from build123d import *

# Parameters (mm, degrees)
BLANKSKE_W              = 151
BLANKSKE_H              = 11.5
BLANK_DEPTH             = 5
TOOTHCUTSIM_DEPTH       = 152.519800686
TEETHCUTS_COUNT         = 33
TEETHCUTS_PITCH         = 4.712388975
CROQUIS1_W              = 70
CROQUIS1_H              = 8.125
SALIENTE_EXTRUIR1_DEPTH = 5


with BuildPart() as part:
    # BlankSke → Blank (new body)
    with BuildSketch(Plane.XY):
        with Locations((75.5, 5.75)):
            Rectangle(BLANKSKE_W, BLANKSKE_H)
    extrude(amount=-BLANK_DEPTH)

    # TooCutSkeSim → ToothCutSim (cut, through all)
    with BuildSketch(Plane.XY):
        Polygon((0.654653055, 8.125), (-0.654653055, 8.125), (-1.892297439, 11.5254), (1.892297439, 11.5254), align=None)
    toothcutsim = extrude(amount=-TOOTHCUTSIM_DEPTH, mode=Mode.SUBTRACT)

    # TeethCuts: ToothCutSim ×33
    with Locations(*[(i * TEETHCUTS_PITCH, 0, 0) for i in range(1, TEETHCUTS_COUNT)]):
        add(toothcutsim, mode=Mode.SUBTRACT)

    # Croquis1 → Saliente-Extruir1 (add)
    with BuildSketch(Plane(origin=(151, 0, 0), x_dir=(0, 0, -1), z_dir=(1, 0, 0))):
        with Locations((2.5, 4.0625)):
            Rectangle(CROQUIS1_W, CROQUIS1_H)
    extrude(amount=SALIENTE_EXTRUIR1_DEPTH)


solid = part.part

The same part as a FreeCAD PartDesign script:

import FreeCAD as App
import Part
import Sketcher
from FreeCAD import Vector
Q = App.Units.Quantity


def add_polygon(sketch, points):
    """Adds a closed chain of lines whose ends are joined by coincident constraints."""
    first, n = sketch.GeometryCount, len(points)
    for a, b in zip(points, points[1:] + points[:1]):
        sketch.addGeometry(Part.LineSegment(App.Vector(*a, 0), App.Vector(*b, 0)), False)
    for i in range(n):
        sketch.addConstraint(Sketcher.Constraint("Coincident", first + i, 2, first + (i + 1) % n, 1))

doc = App.newDocument("Part")
body = doc.addObject("PartDesign::Body", "Body")

# Sketch on XY plane
sketch1 = body.newObject("Sketcher::SketchObject", "Sketch")
sketch1.AttachmentSupport = (doc.getObject("XY_Plane"), [""])
sketch1.MapMode = "FlatFace"
add_polygon(sketch1, [(0, 11.5), (0, 0), (151, 0), (151, 11.5)])  # lines 0-3
sketch1.addConstraint([
    Sketcher.Constraint("Vertical", 0),
    Sketcher.Constraint("Horizontal", 1),
    Sketcher.Constraint("Vertical", 2),
    Sketcher.Constraint("Horizontal", 3),
    Sketcher.Constraint("Coincident", 0, 2, -1, 1),
    Sketcher.Constraint("DistanceX", 1, 1, 1, 2, Q("151 mm")),
    Sketcher.Constraint("DistanceY", 0, 2, 0, 1, Q("11.5 mm")),
])
pad1 = body.newObject("PartDesign::Pad", "Pad")
pad1.Profile = sketch1
pad1.Length = 5
pad1.Reversed = True

# Sketch on XY plane
sketch2 = body.newObject("Sketcher::SketchObject", "Sketch001")
sketch2.AttachmentSupport = (doc.getObject("XY_Plane"), [""])
sketch2.MapMode = "FlatFace"
add_polygon(sketch2, [(-0.654653, 8.125), (0.654653, 8.125), (1.892297, 11.5254), (-1.892297, 11.5254)])  # lines 0-3
sketch2.addConstraint([
    Sketcher.Constraint("Horizontal", 0),
    Sketcher.Constraint("Horizontal", 2),
    Sketcher.Constraint("Equal", 1, 3),
    Sketcher.Constraint("Angle", 1, Q("70 deg")),
    Sketcher.Constraint("DistanceY", -1, 1, 0, 2, Q("8.125 mm")),
    Sketcher.Constraint("DistanceY", -1, 1, 1, 2, Q("11.5254 mm")),
    Sketcher.Constraint("DistanceX", 0, 1, 0, 2, Q("1.309306 mm")),
    Sketcher.Constraint("DistanceX", -1, 1, 0, 2, Q("0.654653 mm")),
])
pocket1 = body.newObject("PartDesign::Pocket", "Pocket")
pocket1.Profile = sketch2
pocket1.Type = "ThroughAll"
doc.recompute()

linearpattern = body.newObject("PartDesign::LinearPattern", "LinearPattern")
linearpattern.Originals = [pocket1]
linearpattern.Direction = (doc.getObject("X_Axis"), [""])
linearpattern.Mode = "offset"
linearpattern.Offset = 4.712389
linearpattern.Occurrences = 33
body.Tip = linearpattern

# Sketch on YZ plane
sketch3 = body.newObject("Sketcher::SketchObject", "Sketch002")
sketch3.AttachmentSupport = (doc.getObject("YZ_Plane"), [""])
sketch3.MapMode = "FlatFace"
sketch3.AttachmentOffset = App.Placement(Vector(0, 0, 151), App.Rotation())
add_polygon(sketch3, [(8.125, 32.5), (0, 32.5), (0, -37.5), (8.125, -37.5)])  # lines 0-3
sketch3.addConstraint([
    Sketcher.Constraint("Horizontal", 0),
    Sketcher.Constraint("Vertical", 1),
    Sketcher.Constraint("Horizontal", 2),
    Sketcher.Constraint("Vertical", 3),
    Sketcher.Constraint("PointOnObject", 0, 2, -2),
    Sketcher.Constraint("DistanceY", 1, 2, 1, 1, Q("70 mm")),
    Sketcher.Constraint("DistanceY", -1, 1, 0, 2, Q("32.5 mm")),
    Sketcher.Constraint("DistanceX", 0, 2, 0, 1, Q("8.125 mm")),
])
pad2 = body.newObject("PartDesign::Pad", "Pad001")
pad2.Profile = sketch3
pad2.Length = 5

doc.recompute()
